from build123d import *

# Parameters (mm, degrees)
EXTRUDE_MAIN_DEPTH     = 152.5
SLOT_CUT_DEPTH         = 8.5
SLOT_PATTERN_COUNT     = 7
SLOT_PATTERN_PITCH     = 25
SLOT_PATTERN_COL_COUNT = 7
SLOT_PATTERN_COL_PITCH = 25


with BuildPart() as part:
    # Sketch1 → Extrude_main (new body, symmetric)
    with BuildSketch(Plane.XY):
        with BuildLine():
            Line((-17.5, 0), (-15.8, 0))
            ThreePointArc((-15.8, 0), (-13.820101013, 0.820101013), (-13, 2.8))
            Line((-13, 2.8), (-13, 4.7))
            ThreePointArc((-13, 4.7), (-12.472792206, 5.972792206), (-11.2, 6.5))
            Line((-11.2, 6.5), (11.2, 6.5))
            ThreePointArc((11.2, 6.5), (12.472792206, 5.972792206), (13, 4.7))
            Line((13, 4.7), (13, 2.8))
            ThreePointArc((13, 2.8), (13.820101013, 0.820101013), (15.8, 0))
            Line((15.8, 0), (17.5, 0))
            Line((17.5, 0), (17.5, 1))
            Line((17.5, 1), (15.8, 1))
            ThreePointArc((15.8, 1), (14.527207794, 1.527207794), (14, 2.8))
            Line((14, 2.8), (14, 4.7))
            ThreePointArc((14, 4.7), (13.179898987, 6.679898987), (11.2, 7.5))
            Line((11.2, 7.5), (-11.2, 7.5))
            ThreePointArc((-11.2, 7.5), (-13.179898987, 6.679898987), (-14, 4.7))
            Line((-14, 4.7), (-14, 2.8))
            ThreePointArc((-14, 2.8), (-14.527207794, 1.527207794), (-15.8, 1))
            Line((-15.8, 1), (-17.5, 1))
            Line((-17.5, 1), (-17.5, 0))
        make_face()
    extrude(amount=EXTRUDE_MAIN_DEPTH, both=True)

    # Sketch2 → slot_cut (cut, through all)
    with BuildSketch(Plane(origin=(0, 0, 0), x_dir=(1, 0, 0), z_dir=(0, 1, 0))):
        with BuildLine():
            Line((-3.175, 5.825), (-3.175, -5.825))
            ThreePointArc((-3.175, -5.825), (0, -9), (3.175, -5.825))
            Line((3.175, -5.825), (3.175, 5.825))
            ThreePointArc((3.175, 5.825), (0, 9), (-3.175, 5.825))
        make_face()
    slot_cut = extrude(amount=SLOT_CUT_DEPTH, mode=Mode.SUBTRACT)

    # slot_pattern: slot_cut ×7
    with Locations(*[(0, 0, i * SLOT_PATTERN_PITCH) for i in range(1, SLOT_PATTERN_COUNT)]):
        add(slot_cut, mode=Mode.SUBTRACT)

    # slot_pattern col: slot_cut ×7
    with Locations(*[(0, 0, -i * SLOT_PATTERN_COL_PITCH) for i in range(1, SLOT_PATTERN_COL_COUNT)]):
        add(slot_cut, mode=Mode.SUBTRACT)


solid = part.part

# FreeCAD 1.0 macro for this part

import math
import FreeCAD as App
import Part
import Sketcher

V = App.Vector

doc = App.newDocument("Part")
body = doc.addObject("PartDesign::Body", "Body")

# Sketch on XY plane
sketch1 = body.newObject("Sketcher::SketchObject", "Sketch")
sketch1.AttachmentSupport = (doc.getObject("XY_Plane"), [""])
sketch1.MapMode = "FlatFace"
sketch1.addGeometry([
    Part.LineSegment(V(-17.5, 0, 0), V(-15.8, 0, 0)),  # 0
    Part.ArcOfCircle(Part.Circle(V(-15.8, 2.8, 0), V(0, 0, 1), 2.8), math.radians(-90), math.radians(0)),  # 1
    Part.LineSegment(V(-13, 2.8, 0), V(-13, 4.7, 0)),  # 2
    Part.ArcOfCircle(Part.Circle(V(-11.2, 4.7, 0), V(0, 0, 1), 1.8), math.radians(90), math.radians(180)),  # 3
    Part.LineSegment(V(-11.2, 6.5, 0), V(11.2, 6.5, 0)),  # 4
    Part.ArcOfCircle(Part.Circle(V(11.2, 4.7, 0), V(0, 0, 1), 1.8), math.radians(0), math.radians(90)),  # 5
    Part.LineSegment(V(13, 4.7, 0), V(13, 2.8, 0)),  # 6
    Part.ArcOfCircle(Part.Circle(V(15.8, 2.8, 0), V(0, 0, 1), 2.8), math.radians(-180), math.radians(-90)),  # 7
    Part.LineSegment(V(15.8, 0, 0), V(17.5, 0, 0)),  # 8
    Part.LineSegment(V(17.5, 0, 0), V(17.5, 1, 0)),  # 9
    Part.LineSegment(V(17.5, 1, 0), V(15.8, 1, 0)),  # 10
    Part.ArcOfCircle(Part.Circle(V(15.8, 2.8, 0), V(0, 0, 1), 1.8), math.radians(180), math.radians(270)),  # 11
    Part.LineSegment(V(14, 2.8, 0), V(14, 4.7, 0)),  # 12
    Part.ArcOfCircle(Part.Circle(V(11.2, 4.7, 0), V(0, 0, 1), 2.8), math.radians(0), math.radians(90)),  # 13
    Part.LineSegment(V(11.2, 7.5, 0), V(-11.2, 7.5, 0)),  # 14
    Part.ArcOfCircle(Part.Circle(V(-11.2, 4.7, 0), V(0, 0, 1), 2.8), math.radians(90), math.radians(180)),  # 15
    Part.LineSegment(V(-14, 4.7, 0), V(-14, 2.8, 0)),  # 16
    Part.ArcOfCircle(Part.Circle(V(-15.8, 2.8, 0), V(0, 0, 1), 1.8), math.radians(-90), math.radians(0)),  # 17
    Part.LineSegment(V(-15.8, 1, 0), V(-17.5, 1, 0)),  # 18
    Part.LineSegment(V(-17.5, 1, 0), V(-17.5, 0, 0)),  # 19
], False)
sketch1.addConstraint([
    Sketcher.Constraint("Tangent", 0, 2, 1, 1),
    Sketcher.Constraint("Tangent", 1, 2, 2, 1),
    Sketcher.Constraint("Tangent", 2, 2, 3, 2),
    Sketcher.Constraint("Tangent", 3, 1, 4, 1),
    Sketcher.Constraint("Tangent", 4, 2, 5, 2),
    Sketcher.Constraint("Tangent", 5, 1, 6, 1),
    Sketcher.Constraint("Tangent", 6, 2, 7, 1),
    Sketcher.Constraint("Tangent", 7, 2, 8, 1),
    Sketcher.Constraint("Coincident", 8, 2, 9, 1),
    Sketcher.Constraint("Coincident", 9, 2, 10, 1),
    Sketcher.Constraint("Tangent", 10, 2, 11, 2),
    Sketcher.Constraint("Tangent", 11, 1, 12, 1),
    Sketcher.Constraint("Tangent", 12, 2, 13, 1),
    Sketcher.Constraint("Tangent", 13, 2, 14, 1),
    Sketcher.Constraint("Tangent", 14, 2, 15, 1),
    Sketcher.Constraint("Tangent", 15, 2, 16, 1),
    Sketcher.Constraint("Tangent", 16, 2, 17, 2),
    Sketcher.Constraint("Tangent", 17, 1, 18, 1),
    Sketcher.Constraint("Coincident", 18, 2, 19, 1),
    Sketcher.Constraint("Coincident", 19, 2, 0, 1),
    Sketcher.Constraint("Horizontal", 0),
    Sketcher.Constraint("Vertical", 2),
    Sketcher.Constraint("Horizontal", 4),
    Sketcher.Constraint("Vertical", 6),
    Sketcher.Constraint("Horizontal", 8),
    Sketcher.Constraint("Vertical", 9),
    Sketcher.Constraint("Horizontal", 10),
    Sketcher.Constraint("Vertical", 12),
    Sketcher.Constraint("Horizontal", 14),
    Sketcher.Constraint("Vertical", 16),
    Sketcher.Constraint("Horizontal", 18),
    Sketcher.Constraint("Vertical", 19),
    Sketcher.Constraint("Coincident", 11, 3, 7, 3),
    Sketcher.Constraint("Coincident", 13, 3, 5, 3),
    Sketcher.Constraint("Coincident", 15, 3, 3, 3),
    Sketcher.Constraint("Coincident", 17, 3, 1, 3),
    Sketcher.Constraint("Equal", 3, 5),
    Sketcher.Constraint("Equal", 1, 7),
    Sketcher.Constraint("Equal", 5, 11),
    Sketcher.Constraint("Symmetric", 0, 2, 7, 2, -1, 1),
    Sketcher.Constraint("Symmetric", 9, 2, 18, 2, -2),
    Sketcher.Constraint("Radius", 1, 2.8),
    Sketcher.Constraint("Radius", 3, 1.8),
    Sketcher.Constraint("DistanceX", 0, 1, 0, 2, 1.7),
    Sketcher.Constraint("DistanceX", 4, 1, 4, 2, 22.4),
    Sketcher.Constraint("DistanceY", 2, 1, 2, 2, 1.9),
])
pad1 = body.newObject("PartDesign::Pad", "Pad")
pad1.Profile = sketch1
pad1.Length = 305
pad1.Midplane = True

# Sketch on XZ plane
sketch2 = body.newObject("Sketcher::SketchObject", "Sketch001")
sketch2.AttachmentSupport = (doc.getObject("XZ_Plane"), [""])
sketch2.MapMode = "FlatFace"
sketch2.addGeometry([
    Part.LineSegment(V(-3.2, -5.8, 0), V(-3.2, 5.8, 0)),
    Part.ArcOfCircle(Part.Circle(V(0, 5.8, 0), V(0, 0, 1), 3.2), math.radians(0), math.radians(180)),
    Part.LineSegment(V(3.2, 5.8, 0), V(3.2, -5.8, 0)),
    Part.ArcOfCircle(Part.Circle(V(0, -5.8, 0), V(0, 0, 1), 3.2), math.radians(180), math.radians(360)),
], False)
sketch2.addConstraint([
    Sketcher.Constraint("Tangent", 0, 2, 1, 2),
    Sketcher.Constraint("Tangent", 1, 1, 2, 1),
    Sketcher.Constraint("Tangent", 2, 2, 3, 2),
    Sketcher.Constraint("Tangent", 3, 1, 0, 1),
    Sketcher.Constraint("Vertical", 0),
    Sketcher.Constraint("Vertical", 2),
    Sketcher.Constraint("Symmetric", 1, 3, 3, 3, -1, 1),
    Sketcher.Constraint("Radius", 1, 3.175),
    Sketcher.Constraint("DistanceY", 0, 1, 0, 2, 11.65),
])
pocket1 = body.newObject("PartDesign::Pocket", "Pocket")
pocket1.Profile = sketch2
pocket1.Type = "ThroughAll"
doc.recompute()

linearpattern = body.newObject("PartDesign::LinearPattern", "LinearPattern")
linearpattern.Originals = [pocket1]
linearpattern.Direction = (doc.getObject("Z_Axis"), [""])
linearpattern.Mode = "offset"
linearpattern.Offset = 25
linearpattern.Occurrences = 7
body.Tip = linearpattern
doc.recompute()

linearpattern2 = body.newObject("PartDesign::LinearPattern", "LinearPattern001")
linearpattern2.Originals = [pocket1]
linearpattern2.Direction = (doc.getObject("Z_Axis"), [""])
linearpattern2.Mode = "offset"
linearpattern2.Offset = 25
linearpattern2.Occurrences = 7
linearpattern2.Reversed = True
body.Tip = linearpattern2

doc.recompute()
